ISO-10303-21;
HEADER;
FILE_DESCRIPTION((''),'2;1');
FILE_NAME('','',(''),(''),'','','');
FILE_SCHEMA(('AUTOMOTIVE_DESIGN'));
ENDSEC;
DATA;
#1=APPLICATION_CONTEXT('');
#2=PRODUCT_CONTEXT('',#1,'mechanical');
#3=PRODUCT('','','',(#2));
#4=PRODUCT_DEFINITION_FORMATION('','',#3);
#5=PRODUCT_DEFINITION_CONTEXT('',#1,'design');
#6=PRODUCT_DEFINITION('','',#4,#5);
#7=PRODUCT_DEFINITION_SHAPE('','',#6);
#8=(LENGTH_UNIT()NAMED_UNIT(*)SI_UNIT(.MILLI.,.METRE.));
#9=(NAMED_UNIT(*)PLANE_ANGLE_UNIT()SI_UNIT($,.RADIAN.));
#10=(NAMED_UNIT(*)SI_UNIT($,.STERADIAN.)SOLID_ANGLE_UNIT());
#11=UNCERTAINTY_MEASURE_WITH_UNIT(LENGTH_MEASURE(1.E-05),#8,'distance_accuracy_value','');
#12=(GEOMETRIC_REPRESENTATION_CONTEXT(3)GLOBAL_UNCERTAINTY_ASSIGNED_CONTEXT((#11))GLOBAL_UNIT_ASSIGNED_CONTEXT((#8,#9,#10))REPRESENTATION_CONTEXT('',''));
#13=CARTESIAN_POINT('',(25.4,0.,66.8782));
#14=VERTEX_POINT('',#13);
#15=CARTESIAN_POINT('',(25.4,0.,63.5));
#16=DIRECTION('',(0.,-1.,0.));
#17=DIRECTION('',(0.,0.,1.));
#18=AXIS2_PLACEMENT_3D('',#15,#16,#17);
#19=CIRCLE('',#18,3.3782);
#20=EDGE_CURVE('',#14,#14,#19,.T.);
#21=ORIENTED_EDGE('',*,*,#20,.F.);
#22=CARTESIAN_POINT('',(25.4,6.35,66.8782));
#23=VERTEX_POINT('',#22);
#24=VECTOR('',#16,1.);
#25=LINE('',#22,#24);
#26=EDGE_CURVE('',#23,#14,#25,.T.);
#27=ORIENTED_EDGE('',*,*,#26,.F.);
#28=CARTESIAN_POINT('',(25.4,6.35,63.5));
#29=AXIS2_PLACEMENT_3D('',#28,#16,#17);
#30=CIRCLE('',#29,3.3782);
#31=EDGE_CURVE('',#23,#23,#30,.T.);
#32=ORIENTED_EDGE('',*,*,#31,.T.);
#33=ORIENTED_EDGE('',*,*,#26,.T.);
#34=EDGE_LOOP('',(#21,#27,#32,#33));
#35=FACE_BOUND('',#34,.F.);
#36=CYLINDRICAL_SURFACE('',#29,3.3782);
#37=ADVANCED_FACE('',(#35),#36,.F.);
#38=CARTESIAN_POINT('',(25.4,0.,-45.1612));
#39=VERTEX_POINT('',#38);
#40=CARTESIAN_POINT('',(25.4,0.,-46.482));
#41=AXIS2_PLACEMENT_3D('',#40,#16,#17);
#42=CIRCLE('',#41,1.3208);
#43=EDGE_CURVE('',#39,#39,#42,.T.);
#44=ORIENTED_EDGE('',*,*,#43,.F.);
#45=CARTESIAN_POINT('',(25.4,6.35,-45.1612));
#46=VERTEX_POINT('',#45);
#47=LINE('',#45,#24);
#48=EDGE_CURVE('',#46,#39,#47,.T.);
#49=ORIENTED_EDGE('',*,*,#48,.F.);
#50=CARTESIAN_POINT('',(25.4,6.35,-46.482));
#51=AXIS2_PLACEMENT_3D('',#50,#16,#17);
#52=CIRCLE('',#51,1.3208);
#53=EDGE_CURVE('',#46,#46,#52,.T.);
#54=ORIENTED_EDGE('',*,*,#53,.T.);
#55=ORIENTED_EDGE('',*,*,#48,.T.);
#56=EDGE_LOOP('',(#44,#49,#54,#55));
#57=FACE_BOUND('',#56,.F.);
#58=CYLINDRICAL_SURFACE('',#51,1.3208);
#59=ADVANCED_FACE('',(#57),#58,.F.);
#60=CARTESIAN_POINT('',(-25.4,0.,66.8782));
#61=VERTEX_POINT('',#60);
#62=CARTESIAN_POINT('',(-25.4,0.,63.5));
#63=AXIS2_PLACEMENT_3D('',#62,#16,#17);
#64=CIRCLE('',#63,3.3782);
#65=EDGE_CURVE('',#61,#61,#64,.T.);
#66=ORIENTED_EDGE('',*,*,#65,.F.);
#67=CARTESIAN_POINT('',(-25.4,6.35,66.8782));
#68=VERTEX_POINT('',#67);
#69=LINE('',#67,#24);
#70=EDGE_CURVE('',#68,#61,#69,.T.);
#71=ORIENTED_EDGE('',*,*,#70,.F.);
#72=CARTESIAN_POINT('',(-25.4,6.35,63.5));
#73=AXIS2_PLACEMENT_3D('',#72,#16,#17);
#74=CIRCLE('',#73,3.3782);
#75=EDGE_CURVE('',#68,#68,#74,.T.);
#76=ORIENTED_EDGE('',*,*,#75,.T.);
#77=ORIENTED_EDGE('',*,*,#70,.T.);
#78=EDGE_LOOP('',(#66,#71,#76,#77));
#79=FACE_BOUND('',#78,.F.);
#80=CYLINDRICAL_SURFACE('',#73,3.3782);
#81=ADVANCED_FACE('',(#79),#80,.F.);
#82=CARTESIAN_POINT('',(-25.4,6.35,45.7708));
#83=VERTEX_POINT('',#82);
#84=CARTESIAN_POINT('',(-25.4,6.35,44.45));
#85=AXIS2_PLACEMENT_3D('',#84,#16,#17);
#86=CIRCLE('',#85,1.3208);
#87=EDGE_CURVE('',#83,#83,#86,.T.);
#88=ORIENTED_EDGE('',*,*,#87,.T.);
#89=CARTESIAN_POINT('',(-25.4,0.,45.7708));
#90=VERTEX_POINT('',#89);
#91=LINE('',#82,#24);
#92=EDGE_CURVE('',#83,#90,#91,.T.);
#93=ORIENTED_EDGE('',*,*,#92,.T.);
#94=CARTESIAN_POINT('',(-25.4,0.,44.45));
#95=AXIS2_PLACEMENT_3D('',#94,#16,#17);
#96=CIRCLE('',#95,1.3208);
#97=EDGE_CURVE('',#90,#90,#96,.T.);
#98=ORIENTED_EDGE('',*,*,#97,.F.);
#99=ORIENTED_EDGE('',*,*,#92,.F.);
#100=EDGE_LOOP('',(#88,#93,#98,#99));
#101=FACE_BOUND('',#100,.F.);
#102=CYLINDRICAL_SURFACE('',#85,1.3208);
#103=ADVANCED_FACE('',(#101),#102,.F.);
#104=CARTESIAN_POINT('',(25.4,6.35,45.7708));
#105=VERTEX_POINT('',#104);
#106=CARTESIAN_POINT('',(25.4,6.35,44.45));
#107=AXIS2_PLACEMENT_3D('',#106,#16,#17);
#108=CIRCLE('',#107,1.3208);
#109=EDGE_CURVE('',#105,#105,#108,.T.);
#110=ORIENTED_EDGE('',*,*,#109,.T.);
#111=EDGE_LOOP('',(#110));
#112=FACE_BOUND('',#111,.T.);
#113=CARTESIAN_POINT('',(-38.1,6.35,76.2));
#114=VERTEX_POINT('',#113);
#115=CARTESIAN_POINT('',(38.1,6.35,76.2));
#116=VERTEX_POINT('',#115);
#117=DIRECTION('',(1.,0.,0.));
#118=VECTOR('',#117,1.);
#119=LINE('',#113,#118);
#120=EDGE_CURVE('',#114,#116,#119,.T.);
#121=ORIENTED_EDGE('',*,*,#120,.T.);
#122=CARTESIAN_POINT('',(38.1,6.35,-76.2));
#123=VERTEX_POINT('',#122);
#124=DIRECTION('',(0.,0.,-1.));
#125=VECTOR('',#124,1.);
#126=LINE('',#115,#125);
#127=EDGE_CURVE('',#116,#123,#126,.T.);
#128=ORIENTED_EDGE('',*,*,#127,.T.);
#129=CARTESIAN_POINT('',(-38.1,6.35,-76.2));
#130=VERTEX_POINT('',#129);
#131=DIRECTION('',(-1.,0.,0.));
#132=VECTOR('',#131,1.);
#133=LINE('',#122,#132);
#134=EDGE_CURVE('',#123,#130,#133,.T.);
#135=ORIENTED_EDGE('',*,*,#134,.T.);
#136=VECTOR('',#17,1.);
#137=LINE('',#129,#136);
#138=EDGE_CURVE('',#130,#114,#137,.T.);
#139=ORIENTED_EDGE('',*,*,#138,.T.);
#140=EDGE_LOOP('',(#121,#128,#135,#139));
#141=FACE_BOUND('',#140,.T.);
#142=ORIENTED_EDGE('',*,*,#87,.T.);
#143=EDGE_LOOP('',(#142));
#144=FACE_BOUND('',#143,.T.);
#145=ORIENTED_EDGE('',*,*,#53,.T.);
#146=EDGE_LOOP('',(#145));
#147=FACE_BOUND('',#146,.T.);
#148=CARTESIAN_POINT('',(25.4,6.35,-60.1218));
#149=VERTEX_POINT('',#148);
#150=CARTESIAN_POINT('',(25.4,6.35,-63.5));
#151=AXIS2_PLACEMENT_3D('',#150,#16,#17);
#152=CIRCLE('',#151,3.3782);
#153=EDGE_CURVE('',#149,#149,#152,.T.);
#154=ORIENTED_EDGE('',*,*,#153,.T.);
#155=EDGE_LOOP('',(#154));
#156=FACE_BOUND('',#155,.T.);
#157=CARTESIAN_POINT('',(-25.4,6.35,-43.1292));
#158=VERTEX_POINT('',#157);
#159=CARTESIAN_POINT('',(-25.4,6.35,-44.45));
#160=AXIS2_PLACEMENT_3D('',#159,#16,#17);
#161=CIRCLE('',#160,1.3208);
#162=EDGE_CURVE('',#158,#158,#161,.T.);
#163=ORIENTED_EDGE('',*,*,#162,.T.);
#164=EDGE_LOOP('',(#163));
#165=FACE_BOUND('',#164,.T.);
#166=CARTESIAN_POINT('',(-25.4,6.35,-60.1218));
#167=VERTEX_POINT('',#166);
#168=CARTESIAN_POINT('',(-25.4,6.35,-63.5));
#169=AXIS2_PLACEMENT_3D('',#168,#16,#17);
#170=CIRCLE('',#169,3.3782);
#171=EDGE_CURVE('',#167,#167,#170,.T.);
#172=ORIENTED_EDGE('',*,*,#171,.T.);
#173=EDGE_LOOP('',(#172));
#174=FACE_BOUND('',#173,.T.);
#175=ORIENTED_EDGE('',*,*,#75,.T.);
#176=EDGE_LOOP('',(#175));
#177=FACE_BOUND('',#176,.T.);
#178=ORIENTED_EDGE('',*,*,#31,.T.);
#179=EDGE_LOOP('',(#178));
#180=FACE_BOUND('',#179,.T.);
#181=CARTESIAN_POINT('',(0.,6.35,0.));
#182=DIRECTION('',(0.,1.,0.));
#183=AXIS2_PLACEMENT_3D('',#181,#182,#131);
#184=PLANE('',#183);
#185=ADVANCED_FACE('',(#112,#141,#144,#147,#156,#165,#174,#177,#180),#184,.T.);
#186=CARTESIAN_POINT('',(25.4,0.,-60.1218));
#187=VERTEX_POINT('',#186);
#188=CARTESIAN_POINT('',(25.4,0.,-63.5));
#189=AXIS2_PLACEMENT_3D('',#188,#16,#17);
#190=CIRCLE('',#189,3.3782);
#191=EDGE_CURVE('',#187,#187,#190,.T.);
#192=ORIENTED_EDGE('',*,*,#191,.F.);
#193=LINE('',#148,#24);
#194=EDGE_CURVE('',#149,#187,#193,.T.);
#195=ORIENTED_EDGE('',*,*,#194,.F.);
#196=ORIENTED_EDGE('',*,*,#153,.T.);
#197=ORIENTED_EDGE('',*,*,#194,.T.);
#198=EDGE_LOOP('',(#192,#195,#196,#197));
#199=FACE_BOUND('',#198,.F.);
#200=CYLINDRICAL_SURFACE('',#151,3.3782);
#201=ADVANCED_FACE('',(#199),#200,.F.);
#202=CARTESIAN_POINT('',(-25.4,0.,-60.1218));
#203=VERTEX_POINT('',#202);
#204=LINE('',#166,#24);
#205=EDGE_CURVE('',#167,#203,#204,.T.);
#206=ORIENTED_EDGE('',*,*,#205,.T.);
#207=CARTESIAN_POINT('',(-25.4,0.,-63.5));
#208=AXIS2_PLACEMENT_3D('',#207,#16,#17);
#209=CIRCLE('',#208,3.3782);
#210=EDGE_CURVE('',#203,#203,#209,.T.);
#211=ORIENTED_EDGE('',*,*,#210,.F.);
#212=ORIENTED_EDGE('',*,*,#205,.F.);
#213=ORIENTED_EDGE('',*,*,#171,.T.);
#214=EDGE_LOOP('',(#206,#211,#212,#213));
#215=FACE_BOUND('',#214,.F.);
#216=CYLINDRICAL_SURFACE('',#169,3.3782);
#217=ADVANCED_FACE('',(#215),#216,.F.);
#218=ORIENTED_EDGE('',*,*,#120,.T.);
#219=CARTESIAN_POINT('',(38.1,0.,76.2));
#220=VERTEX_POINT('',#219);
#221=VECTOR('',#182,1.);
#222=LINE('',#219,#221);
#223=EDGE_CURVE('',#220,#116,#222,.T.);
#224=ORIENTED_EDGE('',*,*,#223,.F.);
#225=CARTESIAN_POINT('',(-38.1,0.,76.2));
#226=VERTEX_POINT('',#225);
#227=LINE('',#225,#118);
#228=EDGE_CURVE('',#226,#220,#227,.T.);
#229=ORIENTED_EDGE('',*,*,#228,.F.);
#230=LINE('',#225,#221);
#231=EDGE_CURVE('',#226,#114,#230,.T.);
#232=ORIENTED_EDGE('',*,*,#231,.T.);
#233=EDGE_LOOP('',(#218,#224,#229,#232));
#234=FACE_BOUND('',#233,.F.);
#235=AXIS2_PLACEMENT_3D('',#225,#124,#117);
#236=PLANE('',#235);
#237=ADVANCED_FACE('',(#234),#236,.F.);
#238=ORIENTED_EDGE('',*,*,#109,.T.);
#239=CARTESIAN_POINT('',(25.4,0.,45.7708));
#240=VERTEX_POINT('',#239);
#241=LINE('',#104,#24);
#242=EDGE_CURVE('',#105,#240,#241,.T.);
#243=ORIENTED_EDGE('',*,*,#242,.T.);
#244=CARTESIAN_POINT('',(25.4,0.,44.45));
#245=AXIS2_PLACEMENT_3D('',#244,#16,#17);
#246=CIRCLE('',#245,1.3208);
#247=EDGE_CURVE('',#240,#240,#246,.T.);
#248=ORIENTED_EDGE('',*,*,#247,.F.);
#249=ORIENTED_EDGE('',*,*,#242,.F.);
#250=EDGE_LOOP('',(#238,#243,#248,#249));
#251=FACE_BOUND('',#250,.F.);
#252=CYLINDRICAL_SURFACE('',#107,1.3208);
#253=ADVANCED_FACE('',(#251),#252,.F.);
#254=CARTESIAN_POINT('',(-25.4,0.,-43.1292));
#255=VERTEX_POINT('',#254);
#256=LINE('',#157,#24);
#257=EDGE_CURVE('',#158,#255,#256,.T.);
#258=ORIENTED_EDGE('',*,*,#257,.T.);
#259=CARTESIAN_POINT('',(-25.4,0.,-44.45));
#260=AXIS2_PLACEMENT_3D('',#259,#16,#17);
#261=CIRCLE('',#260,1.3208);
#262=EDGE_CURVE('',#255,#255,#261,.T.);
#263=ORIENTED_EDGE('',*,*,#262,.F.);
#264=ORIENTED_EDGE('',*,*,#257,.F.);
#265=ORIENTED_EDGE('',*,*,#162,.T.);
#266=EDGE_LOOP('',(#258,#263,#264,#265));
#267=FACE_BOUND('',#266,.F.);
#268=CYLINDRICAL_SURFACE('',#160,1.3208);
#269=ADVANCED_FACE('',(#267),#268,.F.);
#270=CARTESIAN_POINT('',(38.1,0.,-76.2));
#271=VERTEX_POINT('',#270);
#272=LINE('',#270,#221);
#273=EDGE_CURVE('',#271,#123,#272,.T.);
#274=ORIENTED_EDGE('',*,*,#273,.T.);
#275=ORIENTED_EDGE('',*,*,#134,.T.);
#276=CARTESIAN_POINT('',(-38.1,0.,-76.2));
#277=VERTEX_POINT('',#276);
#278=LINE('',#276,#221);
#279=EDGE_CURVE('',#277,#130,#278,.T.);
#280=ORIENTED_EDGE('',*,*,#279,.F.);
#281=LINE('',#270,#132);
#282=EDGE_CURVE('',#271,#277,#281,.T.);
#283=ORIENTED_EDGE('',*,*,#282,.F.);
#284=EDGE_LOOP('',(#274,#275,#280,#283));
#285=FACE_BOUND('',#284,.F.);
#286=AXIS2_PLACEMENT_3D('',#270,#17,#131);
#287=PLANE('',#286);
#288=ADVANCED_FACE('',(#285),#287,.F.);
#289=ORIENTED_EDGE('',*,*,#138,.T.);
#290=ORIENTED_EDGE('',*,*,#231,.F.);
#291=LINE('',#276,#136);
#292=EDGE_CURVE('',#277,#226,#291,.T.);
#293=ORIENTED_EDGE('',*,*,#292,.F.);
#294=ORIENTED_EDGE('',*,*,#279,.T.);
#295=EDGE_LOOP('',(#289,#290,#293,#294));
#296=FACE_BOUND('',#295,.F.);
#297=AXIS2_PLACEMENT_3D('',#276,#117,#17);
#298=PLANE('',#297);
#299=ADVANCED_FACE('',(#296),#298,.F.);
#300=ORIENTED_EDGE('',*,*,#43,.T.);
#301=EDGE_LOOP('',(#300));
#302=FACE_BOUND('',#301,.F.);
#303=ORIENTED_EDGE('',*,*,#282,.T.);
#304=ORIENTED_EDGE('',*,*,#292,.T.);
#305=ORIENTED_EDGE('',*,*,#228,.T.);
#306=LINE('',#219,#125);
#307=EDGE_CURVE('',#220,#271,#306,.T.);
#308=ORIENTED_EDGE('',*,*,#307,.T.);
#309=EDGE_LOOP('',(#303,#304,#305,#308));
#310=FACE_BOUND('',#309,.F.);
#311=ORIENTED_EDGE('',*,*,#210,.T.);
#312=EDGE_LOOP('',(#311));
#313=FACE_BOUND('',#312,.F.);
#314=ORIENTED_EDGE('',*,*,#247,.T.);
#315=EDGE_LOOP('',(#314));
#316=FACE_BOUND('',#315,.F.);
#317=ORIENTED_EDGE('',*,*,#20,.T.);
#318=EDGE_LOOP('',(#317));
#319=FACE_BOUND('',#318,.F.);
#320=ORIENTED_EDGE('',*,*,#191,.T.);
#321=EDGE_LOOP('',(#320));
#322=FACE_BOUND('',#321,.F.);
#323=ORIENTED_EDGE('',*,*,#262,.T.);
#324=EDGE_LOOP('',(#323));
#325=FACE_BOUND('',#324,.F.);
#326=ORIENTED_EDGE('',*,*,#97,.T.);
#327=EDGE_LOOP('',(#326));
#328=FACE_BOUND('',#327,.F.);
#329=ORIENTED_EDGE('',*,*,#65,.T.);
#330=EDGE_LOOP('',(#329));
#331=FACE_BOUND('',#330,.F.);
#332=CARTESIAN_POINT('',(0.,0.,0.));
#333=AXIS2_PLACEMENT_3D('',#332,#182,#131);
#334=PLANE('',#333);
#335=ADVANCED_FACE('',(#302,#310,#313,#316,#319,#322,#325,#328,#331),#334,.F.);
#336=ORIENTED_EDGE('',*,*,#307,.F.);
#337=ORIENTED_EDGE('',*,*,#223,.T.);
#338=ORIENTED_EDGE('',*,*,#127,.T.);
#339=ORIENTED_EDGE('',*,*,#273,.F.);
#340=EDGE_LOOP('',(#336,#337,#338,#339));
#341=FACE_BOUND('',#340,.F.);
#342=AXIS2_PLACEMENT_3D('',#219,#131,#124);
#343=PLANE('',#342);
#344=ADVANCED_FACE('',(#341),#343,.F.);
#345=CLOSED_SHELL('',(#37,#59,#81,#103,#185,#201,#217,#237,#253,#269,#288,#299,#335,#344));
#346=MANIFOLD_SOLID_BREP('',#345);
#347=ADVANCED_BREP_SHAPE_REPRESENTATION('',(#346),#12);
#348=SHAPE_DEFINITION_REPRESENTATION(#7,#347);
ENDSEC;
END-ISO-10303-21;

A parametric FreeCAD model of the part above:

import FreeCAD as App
import Part
import Sketcher

V = App.Vector
Q = App.Units.Quantity

doc = App.newDocument("Part")
body = doc.addObject("PartDesign::Body", "Body")

# Sketch on XZ plane
sketch1 = body.newObject("Sketcher::SketchObject", "Sketch")
sketch1.AttachmentSupport = (doc.getObject("XZ_Plane"), [""])
sketch1.MapMode = "FlatFace"
sketch1.addGeometry(Part.LineSegment(V(-38.1, -76.2, 0), V(-38.1, 76.2, 0)), False)
sketch1.addGeometry(Part.LineSegment(V(-38.1, 76.2, 0), V(38.1, 76.2, 0)), False)
sketch1.addGeometry(Part.LineSegment(V(38.1, 76.2, 0), V(38.1, -76.2, 0)), False)
sketch1.addGeometry(Part.LineSegment(V(38.1, -76.2, 0), V(-38.1, -76.2, 0)), False)
sketch1.addConstraint(Sketcher.Constraint("Coincident", 0, 2, 1, 1))
sketch1.addConstraint(Sketcher.Constraint("Coincident", 1, 2, 2, 1))
sketch1.addConstraint(Sketcher.Constraint("Coincident", 2, 2, 3, 1))
sketch1.addConstraint(Sketcher.Constraint("Coincident", 3, 2, 0, 1))
sketch1.addConstraint(Sketcher.Constraint("Vertical", 0))
sketch1.addConstraint(Sketcher.Constraint("Horizontal", 1))
sketch1.addConstraint(Sketcher.Constraint("Vertical", 2))
sketch1.addConstraint(Sketcher.Constraint("Horizontal", 3))
sketch1.addConstraint(Sketcher.Constraint("Symmetric", 0, 2, 2, 2, -1, 1))
sketch1.addConstraint(Sketcher.Constraint("DistanceX", 1, 1, 1, 2, Q("3 in")))
sketch1.addConstraint(Sketcher.Constraint("DistanceY", 0, 1, 0, 2, Q("6 in")))
pad1 = body.newObject("PartDesign::Pad", "Pad")
pad1.Profile = sketch1
pad1.Length = Q("0.25 in")
pad1.Reversed = True

# Sketch on XZ plane
sketch2 = body.newObject("Sketcher::SketchObject", "Sketch001")
sketch2.AttachmentSupport = (doc.getObject("XZ_Plane"), [""])
sketch2.MapMode = "FlatFace"
sketch2.AttachmentOffset = App.Placement(V(0, 0, -0.25 * 25.4), App.Rotation())
sketch2.addGeometry(Part.Circle(V(-25.4, -63.5, 0), V(0, 0, 1), 3.3782), False)
sketch2.addGeometry(Part.Circle(V(25.4, -63.5, 0), V(0, 0, 1), 3.3782), False)
sketch2.addGeometry(Part.Circle(V(25.4, 63.5, 0), V(0, 0, 1), 3.3782), False)
sketch2.addGeometry(Part.Circle(V(-25.4, 63.5, 0), V(0, 0, 1), 3.3782), False)
sketch2.addConstraint(Sketcher.Constraint("Equal", 0, 1))
sketch2.addConstraint(Sketcher.Constraint("Equal", 1, 2))
sketch2.addConstraint(Sketcher.Constraint("Equal", 2, 3))
sketch2.addConstraint(Sketcher.Constraint("Symmetric", 0, 3, 2, 3, -1, 1))
sketch2.addConstraint(Sketcher.Constraint("Symmetric", 1, 3, 3, 3, -1, 1))
sketch2.addConstraint(Sketcher.Constraint("Symmetric", 0, 3, 1, 3, -2))
sketch2.addConstraint(Sketcher.Constraint("Diameter", 0, Q("0.266 in")))
sketch2.addConstraint(Sketcher.Constraint("DistanceX", 0, 3, -1, 1, Q("1 in")))
sketch2.addConstraint(Sketcher.Constraint("DistanceY", 1, 3, 2, 3, Q("5 in")))
doc.recompute()
hole = body.newObject("PartDesign::Hole", "Hole")
hole.Profile = sketch2
hole.ThreadType = "None"
hole.Diameter = Q("0.266 in")
hole.DepthType = "Dimension"
hole.Depth = Q("0.4251969 in")
hole.DrillPoint = "Angled"
hole.DrillPointAngle = 118
hole.Reversed = True

# Sketch on XZ plane
sketch3 = body.newObject("Sketcher::SketchObject", "Sketch002")
sketch3.AttachmentSupport = (doc.getObject("XZ_Plane"), [""])
sketch3.MapMode = "FlatFace"
sketch3.AttachmentOffset = App.Placement(V(0, 0, -0.25 * 25.4), App.Rotation())
sketch3.addGeometry(Part.Circle(V(-25.4, -44.45, 0), V(0, 0, 1), 1.3208), False)
sketch3.addGeometry(Part.Circle(V(-25.4, 44.45, 0), V(0, 0, 1), 1.3208), False)
sketch3.addGeometry(Part.Circle(V(25.4, 44.45, 0), V(0, 0, 1), 1.3208), False)
sketch3.addGeometry(Part.Circle(V(25.4, -46.482, 0), V(0, 0, 1), 1.3208), False)
sketch3.addConstraint(Sketcher.Constraint("Equal", 0, 1))
sketch3.addConstraint(Sketcher.Constraint("Equal", 1, 2))
sketch3.addConstraint(Sketcher.Constraint("Equal", 2, 3))
sketch3.addConstraint(Sketcher.Constraint("Symmetric", 0, 3, 2, 3, -1, 1))
sketch3.addConstraint(Sketcher.Constraint("Symmetric", 1, 3, 2, 3, -2))
sketch3.addConstraint(Sketcher.Constraint("Vertical", 2, 3, 3, 3))
sketch3.addConstraint(Sketcher.Constraint("Diameter", 0, Q("0.104 in")))
sketch3.addConstraint(Sketcher.Constraint("DistanceX", 0, 3, -1, 1, Q("1 in")))
sketch3.addConstraint(Sketcher.Constraint("DistanceY", 0, 3, 1, 3, Q("3.5 in")))
sketch3.addConstraint(Sketcher.Constraint("DistanceY", 3, 3, -1, 1, Q("1.83 in")))
doc.recompute()
hole2 = body.newObject("PartDesign::Hole", "Hole001")
hole2.Profile = sketch3
hole2.ThreadType = "None"
hole2.Diameter = Q("0.104 in")
hole2.DepthType = "Dimension"
hole2.Depth = Q("0.432 in")
hole2.DrillPoint = "Angled"
hole2.DrillPointAngle = 118
hole2.Reversed = True

doc.recompute()
